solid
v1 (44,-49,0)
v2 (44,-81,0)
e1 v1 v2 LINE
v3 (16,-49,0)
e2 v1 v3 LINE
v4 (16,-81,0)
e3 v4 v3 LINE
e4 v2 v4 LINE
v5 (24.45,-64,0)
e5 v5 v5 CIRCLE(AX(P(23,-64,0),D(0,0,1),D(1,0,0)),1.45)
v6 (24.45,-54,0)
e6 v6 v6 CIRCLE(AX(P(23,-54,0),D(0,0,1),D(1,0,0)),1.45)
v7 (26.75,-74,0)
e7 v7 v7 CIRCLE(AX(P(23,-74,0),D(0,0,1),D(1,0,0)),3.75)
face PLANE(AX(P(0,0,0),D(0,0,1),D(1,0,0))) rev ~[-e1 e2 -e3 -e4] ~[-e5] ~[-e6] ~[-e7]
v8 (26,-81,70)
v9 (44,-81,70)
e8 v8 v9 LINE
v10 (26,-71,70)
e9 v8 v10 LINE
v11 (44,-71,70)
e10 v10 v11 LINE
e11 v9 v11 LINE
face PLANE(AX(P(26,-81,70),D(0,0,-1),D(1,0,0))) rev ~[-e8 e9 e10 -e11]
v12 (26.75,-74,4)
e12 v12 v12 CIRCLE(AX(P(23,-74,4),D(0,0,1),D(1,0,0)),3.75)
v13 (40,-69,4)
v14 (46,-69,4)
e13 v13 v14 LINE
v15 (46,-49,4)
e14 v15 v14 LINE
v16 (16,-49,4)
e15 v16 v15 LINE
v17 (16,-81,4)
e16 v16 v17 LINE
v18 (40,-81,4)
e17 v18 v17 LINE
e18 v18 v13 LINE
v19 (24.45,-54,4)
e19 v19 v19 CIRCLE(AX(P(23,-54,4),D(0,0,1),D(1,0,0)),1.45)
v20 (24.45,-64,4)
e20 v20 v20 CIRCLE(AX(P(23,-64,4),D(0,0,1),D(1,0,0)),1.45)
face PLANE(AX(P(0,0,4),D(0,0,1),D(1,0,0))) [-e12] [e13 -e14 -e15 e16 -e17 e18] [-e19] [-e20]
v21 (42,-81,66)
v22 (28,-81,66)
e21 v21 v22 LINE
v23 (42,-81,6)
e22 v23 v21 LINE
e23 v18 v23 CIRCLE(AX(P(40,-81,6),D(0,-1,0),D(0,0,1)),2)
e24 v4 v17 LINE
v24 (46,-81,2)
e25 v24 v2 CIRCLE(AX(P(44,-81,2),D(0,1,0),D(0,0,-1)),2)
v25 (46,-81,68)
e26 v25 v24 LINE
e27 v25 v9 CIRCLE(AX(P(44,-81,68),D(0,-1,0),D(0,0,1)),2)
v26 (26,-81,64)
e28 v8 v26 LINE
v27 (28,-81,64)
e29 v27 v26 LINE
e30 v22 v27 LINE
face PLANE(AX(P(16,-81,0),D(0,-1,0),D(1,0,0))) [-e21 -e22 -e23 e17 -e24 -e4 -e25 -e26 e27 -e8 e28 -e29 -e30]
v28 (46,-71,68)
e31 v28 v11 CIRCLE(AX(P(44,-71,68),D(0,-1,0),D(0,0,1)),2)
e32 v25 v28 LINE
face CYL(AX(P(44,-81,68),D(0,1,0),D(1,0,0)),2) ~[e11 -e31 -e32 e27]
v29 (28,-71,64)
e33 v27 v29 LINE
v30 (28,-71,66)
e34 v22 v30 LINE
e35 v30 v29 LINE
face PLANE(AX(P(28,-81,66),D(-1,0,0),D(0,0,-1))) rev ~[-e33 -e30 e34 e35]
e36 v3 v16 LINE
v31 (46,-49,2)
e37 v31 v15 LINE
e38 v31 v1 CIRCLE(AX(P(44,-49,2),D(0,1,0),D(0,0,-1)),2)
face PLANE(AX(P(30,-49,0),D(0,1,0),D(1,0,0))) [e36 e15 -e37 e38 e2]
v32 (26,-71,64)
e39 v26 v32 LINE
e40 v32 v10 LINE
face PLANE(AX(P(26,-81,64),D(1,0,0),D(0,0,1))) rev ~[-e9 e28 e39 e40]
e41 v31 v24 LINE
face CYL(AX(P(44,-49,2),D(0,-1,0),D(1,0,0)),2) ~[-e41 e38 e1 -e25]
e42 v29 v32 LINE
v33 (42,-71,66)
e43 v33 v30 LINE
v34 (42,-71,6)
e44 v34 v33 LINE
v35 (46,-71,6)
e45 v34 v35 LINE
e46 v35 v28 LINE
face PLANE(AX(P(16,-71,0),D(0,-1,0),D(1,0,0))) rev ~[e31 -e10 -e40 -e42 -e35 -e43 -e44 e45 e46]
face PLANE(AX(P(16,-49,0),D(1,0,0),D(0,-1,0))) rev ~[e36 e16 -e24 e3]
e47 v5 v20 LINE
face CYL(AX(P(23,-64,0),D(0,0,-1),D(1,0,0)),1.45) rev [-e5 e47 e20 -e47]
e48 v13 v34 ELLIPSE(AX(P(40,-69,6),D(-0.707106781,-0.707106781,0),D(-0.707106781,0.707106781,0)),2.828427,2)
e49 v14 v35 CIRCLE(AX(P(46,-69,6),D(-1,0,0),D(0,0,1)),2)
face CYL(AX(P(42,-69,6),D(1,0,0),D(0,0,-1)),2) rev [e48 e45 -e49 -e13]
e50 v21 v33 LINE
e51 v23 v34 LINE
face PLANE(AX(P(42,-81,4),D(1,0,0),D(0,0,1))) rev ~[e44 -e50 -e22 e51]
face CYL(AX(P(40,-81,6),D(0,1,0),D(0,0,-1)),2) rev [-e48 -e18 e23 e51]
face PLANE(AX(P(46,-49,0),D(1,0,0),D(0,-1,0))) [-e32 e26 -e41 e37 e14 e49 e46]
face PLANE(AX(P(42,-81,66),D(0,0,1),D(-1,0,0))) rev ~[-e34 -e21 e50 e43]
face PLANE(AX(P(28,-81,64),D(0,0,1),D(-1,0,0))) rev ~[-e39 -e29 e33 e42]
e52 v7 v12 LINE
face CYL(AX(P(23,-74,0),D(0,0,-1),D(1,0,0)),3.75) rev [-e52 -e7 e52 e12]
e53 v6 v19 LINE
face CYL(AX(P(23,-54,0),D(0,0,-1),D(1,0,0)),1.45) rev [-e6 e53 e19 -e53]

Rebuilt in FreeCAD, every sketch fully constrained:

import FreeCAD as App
import Part
import Sketcher

V = App.Vector


def edges_at(feature, points):
    """Names of the edges that pass closest to the given points."""
    edges = feature.Shape.Edges
    near = lambda p: min(range(len(edges)), key=lambda i: edges[i].distToShape(Part.Vertex(*p))[0])
    return sorted({f"Edge{near(p) + 1}" for p in points})

doc = App.newDocument("Part")
params = doc.addObject("Spreadsheet::Sheet", "Params")
for row, (alias, value) in enumerate([
    ("sketch1_width", "30 mm"),
    ("sketch1_height", "32 mm"),
    ("sketch1_diameter", "7.5 mm"),
    ("sketch1_diameter2", "2.9 mm"),
    ("pad1_length", "4 mm"),
    ("sketch2_width", "4 mm"),
    ("sketch2_width2", "20 mm"),
    ("sketch2_height", "62 mm"),
    ("pad2_length", "10 mm"),
    ("fillet_radius", "2 mm"),
    ("sketch3_width", "2 mm"),
    ("pad3_length", "10 mm"),
], start=1):
    params.set(f"A{row}", alias)
    params.set(f"B{row}", "=" + value)
    params.setAlias(f"B{row}", alias)

body = doc.addObject("PartDesign::Body", "Body")

sketch1 = body.newObject("Sketcher::SketchObject", "Sketch")
sketch1.AttachmentSupport = (doc.getObject("XY_Plane"), [""])
sketch1.MapMode = "FlatFace"
sketch1.addGeometry(Part.LineSegment(V(46, -49, 0), V(16, -49, 0)), False)
sketch1.addGeometry(Part.LineSegment(V(16, -49, 0), V(16, -81, 0)), False)
sketch1.addGeometry(Part.LineSegment(V(16, -81, 0), V(46, -81, 0)), False)
sketch1.addGeometry(Part.LineSegment(V(46, -81, 0), V(46, -49, 0)), False)
sketch1.addGeometry(Part.Circle(V(23, -74, 0), V(0, 0, 1), 3.8), False)
sketch1.addGeometry(Part.Circle(V(23, -64, 0), V(0, 0, 1), 1.4), False)
sketch1.addGeometry(Part.Circle(V(23, -54, 0), V(0, 0, 1), 1.4), False)
sketch1.addConstraint(Sketcher.Constraint("Coincident", 0, 2, 1, 1))
sketch1.addConstraint(Sketcher.Constraint("Coincident", 1, 2, 2, 1))
sketch1.addConstraint(Sketcher.Constraint("Coincident", 2, 2, 3, 1))
sketch1.addConstraint(Sketcher.Constraint("Coincident", 3, 2, 0, 1))
sketch1.addConstraint(Sketcher.Constraint("Horizontal", 0))
sketch1.addConstraint(Sketcher.Constraint("Vertical", 1))
sketch1.addConstraint(Sketcher.Constraint("Horizontal", 2))
sketch1.addConstraint(Sketcher.Constraint("Vertical", 3))
sketch1.addConstraint(Sketcher.Constraint("Equal", 5, 6))
sketch1.addConstraint(Sketcher.Constraint("Vertical", 4, 3, 5, 3))
sketch1.addConstraint(Sketcher.Constraint("Vertical", 5, 3, 6, 3))
sketch1.addConstraint(Sketcher.Constraint("DistanceX", 0, 2, 0, 1, 30.0))
sketch1.addConstraint(Sketcher.Constraint("DistanceY", 1, 2, 1, 1, 32.0))
sketch1.addConstraint(Sketcher.Constraint("DistanceY", 6, 3, 0, 2, 5.0))
sketch1.addConstraint(Sketcher.Constraint("Diameter", 4, 7.5))
sketch1.addConstraint(Sketcher.Constraint("Diameter", 5, 2.9))
sketch1.addConstraint(Sketcher.Constraint("DistanceX", -1, 1, 4, 3, 23.0))
sketch1.addConstraint(Sketcher.Constraint("DistanceY", 4, 3, -1, 1, 74.0))
sketch1.addConstraint(Sketcher.Constraint("DistanceY", 5, 3, -1, 1, 64.0))
sketch1.addConstraint(Sketcher.Constraint("DistanceY", 6, 3, -1, 1, 54.0))
sketch1.addConstraint(Sketcher.Constraint("DistanceX", -1, 1, 0, 2, 16.0))
sketch1.setExpression("Constraints[11]", "Params.sketch1_width")
sketch1.setExpression("Constraints[12]", "Params.sketch1_height")
sketch1.setExpression("Constraints[14]", "Params.sketch1_diameter")
sketch1.setExpression("Constraints[15]", "Params.sketch1_diameter2")
pad1 = body.newObject("PartDesign::Pad", "Pad")
pad1.Profile = sketch1
pad1.setExpression("Length", "Params.pad1_length")

sketch2 = body.newObject("Sketcher::SketchObject", "Sketch001")
sketch2.AttachmentSupport = (doc.getObject("XZ_Plane"), [""])
sketch2.MapMode = "FlatFace"
sketch2.AttachmentOffset = App.Placement(V(0, 0, 81), App.Rotation())
sketch2.addGeometry(Part.LineSegment(V(42, 4, 0), V(46, 4, 0)), False)
sketch2.addGeometry(Part.LineSegment(V(46, 4, 0), V(46, 70, 0)), False)
sketch2.addGeometry(Part.LineSegment(V(46, 70, 0), V(26, 70, 0)), False)
sketch2.addGeometry(Part.LineSegment(V(26, 70, 0), V(26, 66, 0)), False)
sketch2.addGeometry(Part.LineSegment(V(26, 66, 0), V(42, 66, 0)), False)
sketch2.addGeometry(Part.LineSegment(V(42, 66, 0), V(42, 4, 0)), False)
sketch2.addConstraint(Sketcher.Constraint("Coincident", 0, 2, 1, 1))
sketch2.addConstraint(Sketcher.Constraint("Coincident", 1, 2, 2, 1))
sketch2.addConstraint(Sketcher.Constraint("Coincident", 2, 2, 3, 1))
sketch2.addConstraint(Sketcher.Constraint("Coincident", 3, 2, 4, 1))
sketch2.addConstraint(Sketcher.Constraint("Coincident", 4, 2, 5, 1))
sketch2.addConstraint(Sketcher.Constraint("Coincident", 5, 2, 0, 1))
sketch2.addConstraint(Sketcher.Constraint("Horizontal", 0))
sketch2.addConstraint(Sketcher.Constraint("Vertical", 1))
sketch2.addConstraint(Sketcher.Constraint("Horizontal", 2))
sketch2.addConstraint(Sketcher.Constraint("Vertical", 3))
sketch2.addConstraint(Sketcher.Constraint("Horizontal", 4))
sketch2.addConstraint(Sketcher.Constraint("Vertical", 5))
sketch2.addConstraint(Sketcher.Constraint("Equal", 0, 3))
sketch2.addConstraint(Sketcher.Constraint("DistanceX", 0, 1, 0, 2, 4.0))
sketch2.addConstraint(Sketcher.Constraint("DistanceX", 2, 2, 2, 1, 20.0))
sketch2.addConstraint(Sketcher.Constraint("DistanceY", 5, 2, 5, 1, 62.0))
sketch2.addConstraint(Sketcher.Constraint("DistanceY", -1, 1, 0, 2, 4.0))
sketch2.addConstraint(Sketcher.Constraint("DistanceX", -1, 1, 0, 2, 46.0))
sketch2.setExpression("Constraints[13]", "Params.sketch2_width")
sketch2.setExpression("Constraints[14]", "Params.sketch2_width2")
sketch2.setExpression("Constraints[15]", "Params.sketch2_height")
pad2 = body.newObject("PartDesign::Pad", "Pad001")
pad2.Profile = sketch2
pad2.setExpression("Length", "Params.pad2_length")
pad2.Reversed = True
doc.recompute()

fillet = body.newObject("PartDesign::Fillet", "Fillet")
fillet.Base = (pad2, edges_at(pad2, [
    (46, -76, 70),
    (42, -76, 4),
    (44, -71, 4),
    (46, -65, 0),
]))
fillet.setExpression("Radius", "Params.fillet_radius")

sketch3 = body.newObject("Sketcher::SketchObject", "Sketch002")
sketch3.AttachmentSupport = (doc.getObject("XZ_Plane"), [""])
sketch3.MapMode = "FlatFace"
sketch3.AttachmentOffset = App.Placement(V(0, 0, 81), App.Rotation())
sketch3.addGeometry(Part.LineSegment(V(28, 66, 0), V(26, 66, 0)), False)
sketch3.addGeometry(Part.LineSegment(V(26, 66, 0), V(26, 64, 0)), False)
sketch3.addGeometry(Part.LineSegment(V(26, 64, 0), V(28, 64, 0)), False)
sketch3.addGeometry(Part.LineSegment(V(28, 64, 0), V(28, 66, 0)), False)
sketch3.addConstraint(Sketcher.Constraint("Coincident", 0, 2, 1, 1))
sketch3.addConstraint(Sketcher.Constraint("Coincident", 1, 2, 2, 1))
sketch3.addConstraint(Sketcher.Constraint("Coincident", 2, 2, 3, 1))
sketch3.addConstraint(Sketcher.Constraint("Coincident", 3, 2, 0, 1))
sketch3.addConstraint(Sketcher.Constraint("Horizontal", 0))
sketch3.addConstraint(Sketcher.Constraint("Vertical", 1))
sketch3.addConstraint(Sketcher.Constraint("Horizontal", 2))
sketch3.addConstraint(Sketcher.Constraint("Vertical", 3))
sketch3.addConstraint(Sketcher.Constraint("Equal", 2, 1))
sketch3.addConstraint(Sketcher.Constraint("DistanceX", 0, 2, 0, 1, 2.0))
sketch3.addConstraint(Sketcher.Constraint("DistanceX", -1, 1, 0, 2, 26.0))
sketch3.addConstraint(Sketcher.Constraint("DistanceY", -1, 1, 0, 2, 66.0))
sketch3.setExpression("Constraints[9]", "Params.sketch3_width")
pad3 = body.newObject("PartDesign::Pad", "Pad002")
pad3.Profile = sketch3
pad3.setExpression("Length", "Params.pad3_length")
pad3.Reversed = True

doc.recompute()
